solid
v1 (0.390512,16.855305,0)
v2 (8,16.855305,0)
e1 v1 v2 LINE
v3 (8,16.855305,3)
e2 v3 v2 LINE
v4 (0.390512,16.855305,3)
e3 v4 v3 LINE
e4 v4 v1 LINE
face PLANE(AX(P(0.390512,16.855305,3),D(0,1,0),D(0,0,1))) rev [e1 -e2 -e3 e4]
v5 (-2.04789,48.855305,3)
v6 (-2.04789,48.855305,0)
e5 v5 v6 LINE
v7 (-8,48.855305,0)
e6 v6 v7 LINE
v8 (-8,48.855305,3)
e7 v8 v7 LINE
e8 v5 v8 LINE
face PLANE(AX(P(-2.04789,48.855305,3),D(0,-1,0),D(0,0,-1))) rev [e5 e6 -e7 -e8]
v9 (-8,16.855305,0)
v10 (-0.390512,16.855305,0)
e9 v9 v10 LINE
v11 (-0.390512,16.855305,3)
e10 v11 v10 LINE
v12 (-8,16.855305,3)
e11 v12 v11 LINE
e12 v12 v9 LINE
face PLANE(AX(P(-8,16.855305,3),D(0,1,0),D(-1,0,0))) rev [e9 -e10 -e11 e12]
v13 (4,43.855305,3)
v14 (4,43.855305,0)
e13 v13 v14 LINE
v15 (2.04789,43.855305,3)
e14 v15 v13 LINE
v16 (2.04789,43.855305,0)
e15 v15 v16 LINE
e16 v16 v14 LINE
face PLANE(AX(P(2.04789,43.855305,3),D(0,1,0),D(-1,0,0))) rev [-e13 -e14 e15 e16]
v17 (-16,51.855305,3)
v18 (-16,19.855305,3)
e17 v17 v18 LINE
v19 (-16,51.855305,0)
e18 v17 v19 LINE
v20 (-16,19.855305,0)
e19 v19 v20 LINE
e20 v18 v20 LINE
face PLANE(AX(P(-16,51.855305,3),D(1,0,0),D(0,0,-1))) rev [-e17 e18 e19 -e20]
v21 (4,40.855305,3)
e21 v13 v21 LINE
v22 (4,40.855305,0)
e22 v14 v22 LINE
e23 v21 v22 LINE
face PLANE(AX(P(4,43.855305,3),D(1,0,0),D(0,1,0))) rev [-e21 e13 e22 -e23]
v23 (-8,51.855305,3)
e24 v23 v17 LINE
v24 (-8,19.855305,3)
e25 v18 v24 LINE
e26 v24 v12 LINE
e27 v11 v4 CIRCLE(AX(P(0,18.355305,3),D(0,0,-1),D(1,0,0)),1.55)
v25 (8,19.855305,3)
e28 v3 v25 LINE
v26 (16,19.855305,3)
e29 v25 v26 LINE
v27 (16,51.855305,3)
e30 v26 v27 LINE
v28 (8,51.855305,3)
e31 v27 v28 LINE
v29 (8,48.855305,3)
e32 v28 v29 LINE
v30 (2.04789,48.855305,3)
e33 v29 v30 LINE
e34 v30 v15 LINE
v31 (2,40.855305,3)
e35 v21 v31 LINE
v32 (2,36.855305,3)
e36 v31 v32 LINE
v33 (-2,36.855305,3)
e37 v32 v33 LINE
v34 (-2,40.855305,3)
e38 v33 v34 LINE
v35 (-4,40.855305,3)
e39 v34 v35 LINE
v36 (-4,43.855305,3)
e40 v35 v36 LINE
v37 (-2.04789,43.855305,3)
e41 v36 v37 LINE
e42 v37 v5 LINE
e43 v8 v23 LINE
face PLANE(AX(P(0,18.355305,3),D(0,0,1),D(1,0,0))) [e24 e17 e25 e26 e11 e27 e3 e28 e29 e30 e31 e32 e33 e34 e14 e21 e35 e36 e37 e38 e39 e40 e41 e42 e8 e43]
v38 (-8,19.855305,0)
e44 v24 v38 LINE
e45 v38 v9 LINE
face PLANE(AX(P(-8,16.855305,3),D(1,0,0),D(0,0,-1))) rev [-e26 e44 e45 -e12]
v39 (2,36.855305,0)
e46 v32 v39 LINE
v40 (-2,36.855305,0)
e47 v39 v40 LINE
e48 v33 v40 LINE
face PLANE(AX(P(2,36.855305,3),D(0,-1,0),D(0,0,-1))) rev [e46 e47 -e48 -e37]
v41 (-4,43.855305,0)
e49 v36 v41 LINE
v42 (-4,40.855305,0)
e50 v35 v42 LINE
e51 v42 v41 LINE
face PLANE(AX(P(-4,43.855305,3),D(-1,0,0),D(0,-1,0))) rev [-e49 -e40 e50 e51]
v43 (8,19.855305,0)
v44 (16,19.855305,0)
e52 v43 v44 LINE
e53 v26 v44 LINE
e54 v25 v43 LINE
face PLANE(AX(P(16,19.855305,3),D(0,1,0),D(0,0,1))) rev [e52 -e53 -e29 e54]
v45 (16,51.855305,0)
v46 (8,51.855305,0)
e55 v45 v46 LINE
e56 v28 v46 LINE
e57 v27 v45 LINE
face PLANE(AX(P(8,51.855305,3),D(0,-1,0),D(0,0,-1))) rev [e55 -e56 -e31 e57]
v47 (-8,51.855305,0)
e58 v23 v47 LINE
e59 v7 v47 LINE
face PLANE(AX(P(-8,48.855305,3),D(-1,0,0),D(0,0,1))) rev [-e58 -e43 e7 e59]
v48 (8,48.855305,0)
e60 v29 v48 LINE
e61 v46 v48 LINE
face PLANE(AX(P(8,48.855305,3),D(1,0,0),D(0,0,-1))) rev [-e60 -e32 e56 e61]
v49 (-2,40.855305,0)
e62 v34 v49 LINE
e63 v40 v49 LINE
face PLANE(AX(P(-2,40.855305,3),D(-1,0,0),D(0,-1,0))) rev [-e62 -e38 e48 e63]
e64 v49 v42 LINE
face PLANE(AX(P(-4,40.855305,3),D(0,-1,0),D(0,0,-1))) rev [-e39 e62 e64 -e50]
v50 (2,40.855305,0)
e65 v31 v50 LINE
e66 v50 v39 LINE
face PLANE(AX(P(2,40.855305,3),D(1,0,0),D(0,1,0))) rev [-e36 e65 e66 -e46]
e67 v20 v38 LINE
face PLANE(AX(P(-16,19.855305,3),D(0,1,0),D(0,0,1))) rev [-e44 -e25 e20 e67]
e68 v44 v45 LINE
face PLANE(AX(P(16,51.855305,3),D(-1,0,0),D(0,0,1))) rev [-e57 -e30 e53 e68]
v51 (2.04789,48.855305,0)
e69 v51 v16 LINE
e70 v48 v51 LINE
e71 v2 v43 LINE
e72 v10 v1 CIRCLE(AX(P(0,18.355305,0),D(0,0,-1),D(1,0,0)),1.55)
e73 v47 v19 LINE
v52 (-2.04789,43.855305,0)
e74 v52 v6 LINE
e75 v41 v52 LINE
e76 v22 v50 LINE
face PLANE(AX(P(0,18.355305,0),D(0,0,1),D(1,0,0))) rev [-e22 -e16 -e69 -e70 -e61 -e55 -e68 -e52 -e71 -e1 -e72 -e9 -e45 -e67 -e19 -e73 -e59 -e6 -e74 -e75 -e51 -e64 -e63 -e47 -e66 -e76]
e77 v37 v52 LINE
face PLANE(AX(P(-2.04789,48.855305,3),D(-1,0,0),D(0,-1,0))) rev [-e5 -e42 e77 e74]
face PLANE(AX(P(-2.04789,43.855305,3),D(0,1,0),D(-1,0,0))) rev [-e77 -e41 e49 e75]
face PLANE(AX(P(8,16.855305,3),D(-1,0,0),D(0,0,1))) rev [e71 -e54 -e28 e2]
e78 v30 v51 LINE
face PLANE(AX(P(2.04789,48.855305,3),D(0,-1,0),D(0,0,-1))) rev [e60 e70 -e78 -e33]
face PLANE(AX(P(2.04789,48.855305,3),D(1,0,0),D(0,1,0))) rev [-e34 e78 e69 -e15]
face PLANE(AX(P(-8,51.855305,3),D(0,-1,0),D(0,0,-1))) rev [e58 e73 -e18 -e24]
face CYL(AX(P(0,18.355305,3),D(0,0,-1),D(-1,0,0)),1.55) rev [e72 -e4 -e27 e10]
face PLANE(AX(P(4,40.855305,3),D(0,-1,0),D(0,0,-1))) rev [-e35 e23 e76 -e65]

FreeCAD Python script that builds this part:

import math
import FreeCAD as App
import Part
import Sketcher
from FreeCAD import Vector

doc = App.newDocument("Part")
body = doc.addObject("PartDesign::Body", "Body")

sketch1 = doc.addObject("Sketcher::SketchObject", "Sketch")
body.addObject(sketch1)
sketch1.AttachmentSupport = (doc.XY_Plane, [""])
sketch1.MapMode = "FlatFace"
sketch1.addGeometry(Part.LineSegment(Vector(8, 48.9, 0), Vector(2, 48.9, 0)), False)
sketch1.addGeometry(Part.LineSegment(Vector(2, 48.9, 0), Vector(2, 43.9, 0)), False)
sketch1.addGeometry(Part.LineSegment(Vector(2, 43.9, 0), Vector(4, 43.9, 0)), False)
sketch1.addGeometry(Part.LineSegment(Vector(4, 43.9, 0), Vector(4, 40.9, 0)), False)
sketch1.addGeometry(Part.LineSegment(Vector(4, 40.9, 0), Vector(2, 40.9, 0)), False)
sketch1.addGeometry(Part.LineSegment(Vector(2, 40.9, 0), Vector(2, 36.9, 0)), False)
sketch1.addGeometry(Part.LineSegment(Vector(2, 36.9, 0), Vector(-2, 36.9, 0)), False)
sketch1.addGeometry(Part.LineSegment(Vector(-2, 36.9, 0), Vector(-2, 40.9, 0)), False)
sketch1.addGeometry(Part.LineSegment(Vector(-2, 40.9, 0), Vector(-4, 40.9, 0)), False)
sketch1.addGeometry(Part.LineSegment(Vector(-4, 40.9, 0), Vector(-4, 43.9, 0)), False)
sketch1.addGeometry(Part.LineSegment(Vector(-4, 43.9, 0), Vector(-2, 43.9, 0)), False)
sketch1.addGeometry(Part.LineSegment(Vector(-2, 43.9, 0), Vector(-2, 48.9, 0)), False)
sketch1.addGeometry(Part.LineSegment(Vector(-2, 48.9, 0), Vector(-8, 48.9, 0)), False)
sketch1.addGeometry(Part.LineSegment(Vector(-8, 48.9, 0), Vector(-8, 51.9, 0)), False)
sketch1.addGeometry(Part.LineSegment(Vector(-8, 51.9, 0), Vector(-16, 51.9, 0)), False)
sketch1.addGeometry(Part.LineSegment(Vector(-16, 51.9, 0), Vector(-16, 19.9, 0)), False)
sketch1.addGeometry(Part.LineSegment(Vector(-16, 19.9, 0), Vector(-8, 19.9, 0)), False)
sketch1.addGeometry(Part.LineSegment(Vector(-8, 19.9, 0), Vector(-8, 16.9, 0)), False)
sketch1.addGeometry(Part.LineSegment(Vector(-8, 16.9, 0), Vector(-0.4, 16.9, 0)), False)
sketch1.addGeometry(Part.ArcOfCircle(Part.Circle(Vector(0, 18.4, 0), Vector(0, 0, 1), 1.6), math.radians(-75), math.radians(255)), False)
sketch1.addGeometry(Part.LineSegment(Vector(0.4, 16.9, 0), Vector(8, 16.9, 0)), False)
sketch1.addGeometry(Part.LineSegment(Vector(8, 16.9, 0), Vector(8, 19.9, 0)), False)
sketch1.addGeometry(Part.LineSegment(Vector(8, 19.9, 0), Vector(16, 19.9, 0)), False)
sketch1.addGeometry(Part.LineSegment(Vector(16, 19.9, 0), Vector(16, 51.9, 0)), False)
sketch1.addGeometry(Part.LineSegment(Vector(16, 51.9, 0), Vector(8, 51.9, 0)), False)
sketch1.addGeometry(Part.LineSegment(Vector(8, 51.9, 0), Vector(8, 48.9, 0)), False)
sketch1.addConstraint(Sketcher.Constraint("Coincident", 0, 2, 1, 1))
sketch1.addConstraint(Sketcher.Constraint("Coincident", 1, 2, 2, 1))
sketch1.addConstraint(Sketcher.Constraint("Coincident", 2, 2, 3, 1))
sketch1.addConstraint(Sketcher.Constraint("Coincident", 3, 2, 4, 1))
sketch1.addConstraint(Sketcher.Constraint("Coincident", 4, 2, 5, 1))
sketch1.addConstraint(Sketcher.Constraint("Coincident", 5, 2, 6, 1))
sketch1.addConstraint(Sketcher.Constraint("Coincident", 6, 2, 7, 1))
sketch1.addConstraint(Sketcher.Constraint("Coincident", 7, 2, 8, 1))
sketch1.addConstraint(Sketcher.Constraint("Coincident", 8, 2, 9, 1))
sketch1.addConstraint(Sketcher.Constraint("Coincident", 9, 2, 10, 1))
sketch1.addConstraint(Sketcher.Constraint("Coincident", 10, 2, 11, 1))
sketch1.addConstraint(Sketcher.Constraint("Coincident", 11, 2, 12, 1))
sketch1.addConstraint(Sketcher.Constraint("Coincident", 12, 2, 13, 1))
sketch1.addConstraint(Sketcher.Constraint("Coincident", 13, 2, 14, 1))
sketch1.addConstraint(Sketcher.Constraint("Coincident", 14, 2, 15, 1))
sketch1.addConstraint(Sketcher.Constraint("Coincident", 15, 2, 16, 1))
sketch1.addConstraint(Sketcher.Constraint("Coincident", 16, 2, 17, 1))
sketch1.addConstraint(Sketcher.Constraint("Coincident", 17, 2, 18, 1))
sketch1.addConstraint(Sketcher.Constraint("Coincident", 18, 2, 19, 2))
sketch1.addConstraint(Sketcher.Constraint("Coincident", 19, 1, 20, 1))
sketch1.addConstraint(Sketcher.Constraint("Coincident", 20, 2, 21, 1))
sketch1.addConstraint(Sketcher.Constraint("Coincident", 21, 2, 22, 1))
sketch1.addConstraint(Sketcher.Constraint("Coincident", 22, 2, 23, 1))
sketch1.addConstraint(Sketcher.Constraint("Coincident", 23, 2, 24, 1))
sketch1.addConstraint(Sketcher.Constraint("Coincident", 24, 2, 25, 1))
sketch1.addConstraint(Sketcher.Constraint("Coincident", 25, 2, 0, 1))
sketch1.addConstraint(Sketcher.Constraint("Horizontal", 0))
sketch1.addConstraint(Sketcher.Constraint("Vertical", 1))
sketch1.addConstraint(Sketcher.Constraint("Horizontal", 2))
sketch1.addConstraint(Sketcher.Constraint("Vertical", 3))
sketch1.addConstraint(Sketcher.Constraint("Horizontal", 4))
sketch1.addConstraint(Sketcher.Constraint("Vertical", 5))
sketch1.addConstraint(Sketcher.Constraint("Horizontal", 6))
sketch1.addConstraint(Sketcher.Constraint("Vertical", 7))
sketch1.addConstraint(Sketcher.Constraint("Horizontal", 8))
sketch1.addConstraint(Sketcher.Constraint("Vertical", 9))
sketch1.addConstraint(Sketcher.Constraint("Horizontal", 10))
sketch1.addConstraint(Sketcher.Constraint("Vertical", 11))
sketch1.addConstraint(Sketcher.Constraint("Horizontal", 12))
sketch1.addConstraint(Sketcher.Constraint("Vertical", 13))
sketch1.addConstraint(Sketcher.Constraint("Horizontal", 14))
sketch1.addConstraint(Sketcher.Constraint("Vertical", 15))
sketch1.addConstraint(Sketcher.Constraint("Horizontal", 16))
sketch1.addConstraint(Sketcher.Constraint("Vertical", 17))
sketch1.addConstraint(Sketcher.Constraint("Horizontal", 18))
sketch1.addConstraint(Sketcher.Constraint("Horizontal", 20))
sketch1.addConstraint(Sketcher.Constraint("Vertical", 21))
sketch1.addConstraint(Sketcher.Constraint("Horizontal", 22))
sketch1.addConstraint(Sketcher.Constraint("Vertical", 23))
sketch1.addConstraint(Sketcher.Constraint("Horizontal", 24))
sketch1.addConstraint(Sketcher.Constraint("Vertical", 25))
sketch1.addConstraint(Sketcher.Constraint("Symmetric", 4, 2, 7, 2, -2))
sketch1.addConstraint(Sketcher.Constraint("Symmetric", 2, 2, 9, 2, -2))
sketch1.addConstraint(Sketcher.Constraint("Symmetric", 0, 2, 11, 2, -2))
sketch1.addConstraint(Sketcher.Constraint("Symmetric", 18, 2, 19, 1, -2))
sketch1.addConstraint(Sketcher.Constraint("Symmetric", 16, 2, 21, 2, -2))
sketch1.addConstraint(Sketcher.Constraint("Symmetric", 14, 2, 23, 2, -2))
sketch1.addConstraint(Sketcher.Constraint("Vertical", 13, 2, 16, 2))
sketch1.addConstraint(Sketcher.Constraint("Vertical", 21, 2, 24, 2))
sketch1.addConstraint(Sketcher.Constraint("Equal", 6, 5))
sketch1.addConstraint(Sketcher.Constraint("Equal", 9, 13))
sketch1.addConstraint(Sketcher.Constraint("Equal", 13, 17))
sketch1.addConstraint(Sketcher.Constraint("DistanceX", 4, 2, 4, 1, 2.0))
sketch1.addConstraint(Sketcher.Constraint("DistanceX", 6, 2, 6, 1, 4.0))
sketch1.addConstraint(Sketcher.Constraint("DistanceX", 14, 2, 14, 1, 8.0))
sketch1.addConstraint(Sketcher.Constraint("DistanceY", 1, 2, 1, 1, 5.0))
sketch1.addConstraint(Sketcher.Constraint("DistanceY", 3, 2, 3, 1, 3.0))
sketch1.addConstraint(Sketcher.Constraint("DistanceY", 15, 2, 15, 1, 32.0))
sketch1.addConstraint(Sketcher.Constraint("Radius", 19, 1.55))
sketch1.addConstraint(Sketcher.Constraint("DistanceX", 12, 2, -1, 1, 8.0))
sketch1.addConstraint(Sketcher.Constraint("DistanceY", 19, 3, 0, 2, 30.5))
sketch1.addConstraint(Sketcher.Constraint("DistanceX", 0, 2, 0, 1, 5.95211))
sketch1.addConstraint(Sketcher.Constraint("DistanceY", -1, 1, 19, 3, 18.355305))
pad1 = doc.addObject("PartDesign::Pad", "Pad")
body.addObject(pad1)
pad1.Profile = sketch1
pad1.Length = 3

doc.recompute()
